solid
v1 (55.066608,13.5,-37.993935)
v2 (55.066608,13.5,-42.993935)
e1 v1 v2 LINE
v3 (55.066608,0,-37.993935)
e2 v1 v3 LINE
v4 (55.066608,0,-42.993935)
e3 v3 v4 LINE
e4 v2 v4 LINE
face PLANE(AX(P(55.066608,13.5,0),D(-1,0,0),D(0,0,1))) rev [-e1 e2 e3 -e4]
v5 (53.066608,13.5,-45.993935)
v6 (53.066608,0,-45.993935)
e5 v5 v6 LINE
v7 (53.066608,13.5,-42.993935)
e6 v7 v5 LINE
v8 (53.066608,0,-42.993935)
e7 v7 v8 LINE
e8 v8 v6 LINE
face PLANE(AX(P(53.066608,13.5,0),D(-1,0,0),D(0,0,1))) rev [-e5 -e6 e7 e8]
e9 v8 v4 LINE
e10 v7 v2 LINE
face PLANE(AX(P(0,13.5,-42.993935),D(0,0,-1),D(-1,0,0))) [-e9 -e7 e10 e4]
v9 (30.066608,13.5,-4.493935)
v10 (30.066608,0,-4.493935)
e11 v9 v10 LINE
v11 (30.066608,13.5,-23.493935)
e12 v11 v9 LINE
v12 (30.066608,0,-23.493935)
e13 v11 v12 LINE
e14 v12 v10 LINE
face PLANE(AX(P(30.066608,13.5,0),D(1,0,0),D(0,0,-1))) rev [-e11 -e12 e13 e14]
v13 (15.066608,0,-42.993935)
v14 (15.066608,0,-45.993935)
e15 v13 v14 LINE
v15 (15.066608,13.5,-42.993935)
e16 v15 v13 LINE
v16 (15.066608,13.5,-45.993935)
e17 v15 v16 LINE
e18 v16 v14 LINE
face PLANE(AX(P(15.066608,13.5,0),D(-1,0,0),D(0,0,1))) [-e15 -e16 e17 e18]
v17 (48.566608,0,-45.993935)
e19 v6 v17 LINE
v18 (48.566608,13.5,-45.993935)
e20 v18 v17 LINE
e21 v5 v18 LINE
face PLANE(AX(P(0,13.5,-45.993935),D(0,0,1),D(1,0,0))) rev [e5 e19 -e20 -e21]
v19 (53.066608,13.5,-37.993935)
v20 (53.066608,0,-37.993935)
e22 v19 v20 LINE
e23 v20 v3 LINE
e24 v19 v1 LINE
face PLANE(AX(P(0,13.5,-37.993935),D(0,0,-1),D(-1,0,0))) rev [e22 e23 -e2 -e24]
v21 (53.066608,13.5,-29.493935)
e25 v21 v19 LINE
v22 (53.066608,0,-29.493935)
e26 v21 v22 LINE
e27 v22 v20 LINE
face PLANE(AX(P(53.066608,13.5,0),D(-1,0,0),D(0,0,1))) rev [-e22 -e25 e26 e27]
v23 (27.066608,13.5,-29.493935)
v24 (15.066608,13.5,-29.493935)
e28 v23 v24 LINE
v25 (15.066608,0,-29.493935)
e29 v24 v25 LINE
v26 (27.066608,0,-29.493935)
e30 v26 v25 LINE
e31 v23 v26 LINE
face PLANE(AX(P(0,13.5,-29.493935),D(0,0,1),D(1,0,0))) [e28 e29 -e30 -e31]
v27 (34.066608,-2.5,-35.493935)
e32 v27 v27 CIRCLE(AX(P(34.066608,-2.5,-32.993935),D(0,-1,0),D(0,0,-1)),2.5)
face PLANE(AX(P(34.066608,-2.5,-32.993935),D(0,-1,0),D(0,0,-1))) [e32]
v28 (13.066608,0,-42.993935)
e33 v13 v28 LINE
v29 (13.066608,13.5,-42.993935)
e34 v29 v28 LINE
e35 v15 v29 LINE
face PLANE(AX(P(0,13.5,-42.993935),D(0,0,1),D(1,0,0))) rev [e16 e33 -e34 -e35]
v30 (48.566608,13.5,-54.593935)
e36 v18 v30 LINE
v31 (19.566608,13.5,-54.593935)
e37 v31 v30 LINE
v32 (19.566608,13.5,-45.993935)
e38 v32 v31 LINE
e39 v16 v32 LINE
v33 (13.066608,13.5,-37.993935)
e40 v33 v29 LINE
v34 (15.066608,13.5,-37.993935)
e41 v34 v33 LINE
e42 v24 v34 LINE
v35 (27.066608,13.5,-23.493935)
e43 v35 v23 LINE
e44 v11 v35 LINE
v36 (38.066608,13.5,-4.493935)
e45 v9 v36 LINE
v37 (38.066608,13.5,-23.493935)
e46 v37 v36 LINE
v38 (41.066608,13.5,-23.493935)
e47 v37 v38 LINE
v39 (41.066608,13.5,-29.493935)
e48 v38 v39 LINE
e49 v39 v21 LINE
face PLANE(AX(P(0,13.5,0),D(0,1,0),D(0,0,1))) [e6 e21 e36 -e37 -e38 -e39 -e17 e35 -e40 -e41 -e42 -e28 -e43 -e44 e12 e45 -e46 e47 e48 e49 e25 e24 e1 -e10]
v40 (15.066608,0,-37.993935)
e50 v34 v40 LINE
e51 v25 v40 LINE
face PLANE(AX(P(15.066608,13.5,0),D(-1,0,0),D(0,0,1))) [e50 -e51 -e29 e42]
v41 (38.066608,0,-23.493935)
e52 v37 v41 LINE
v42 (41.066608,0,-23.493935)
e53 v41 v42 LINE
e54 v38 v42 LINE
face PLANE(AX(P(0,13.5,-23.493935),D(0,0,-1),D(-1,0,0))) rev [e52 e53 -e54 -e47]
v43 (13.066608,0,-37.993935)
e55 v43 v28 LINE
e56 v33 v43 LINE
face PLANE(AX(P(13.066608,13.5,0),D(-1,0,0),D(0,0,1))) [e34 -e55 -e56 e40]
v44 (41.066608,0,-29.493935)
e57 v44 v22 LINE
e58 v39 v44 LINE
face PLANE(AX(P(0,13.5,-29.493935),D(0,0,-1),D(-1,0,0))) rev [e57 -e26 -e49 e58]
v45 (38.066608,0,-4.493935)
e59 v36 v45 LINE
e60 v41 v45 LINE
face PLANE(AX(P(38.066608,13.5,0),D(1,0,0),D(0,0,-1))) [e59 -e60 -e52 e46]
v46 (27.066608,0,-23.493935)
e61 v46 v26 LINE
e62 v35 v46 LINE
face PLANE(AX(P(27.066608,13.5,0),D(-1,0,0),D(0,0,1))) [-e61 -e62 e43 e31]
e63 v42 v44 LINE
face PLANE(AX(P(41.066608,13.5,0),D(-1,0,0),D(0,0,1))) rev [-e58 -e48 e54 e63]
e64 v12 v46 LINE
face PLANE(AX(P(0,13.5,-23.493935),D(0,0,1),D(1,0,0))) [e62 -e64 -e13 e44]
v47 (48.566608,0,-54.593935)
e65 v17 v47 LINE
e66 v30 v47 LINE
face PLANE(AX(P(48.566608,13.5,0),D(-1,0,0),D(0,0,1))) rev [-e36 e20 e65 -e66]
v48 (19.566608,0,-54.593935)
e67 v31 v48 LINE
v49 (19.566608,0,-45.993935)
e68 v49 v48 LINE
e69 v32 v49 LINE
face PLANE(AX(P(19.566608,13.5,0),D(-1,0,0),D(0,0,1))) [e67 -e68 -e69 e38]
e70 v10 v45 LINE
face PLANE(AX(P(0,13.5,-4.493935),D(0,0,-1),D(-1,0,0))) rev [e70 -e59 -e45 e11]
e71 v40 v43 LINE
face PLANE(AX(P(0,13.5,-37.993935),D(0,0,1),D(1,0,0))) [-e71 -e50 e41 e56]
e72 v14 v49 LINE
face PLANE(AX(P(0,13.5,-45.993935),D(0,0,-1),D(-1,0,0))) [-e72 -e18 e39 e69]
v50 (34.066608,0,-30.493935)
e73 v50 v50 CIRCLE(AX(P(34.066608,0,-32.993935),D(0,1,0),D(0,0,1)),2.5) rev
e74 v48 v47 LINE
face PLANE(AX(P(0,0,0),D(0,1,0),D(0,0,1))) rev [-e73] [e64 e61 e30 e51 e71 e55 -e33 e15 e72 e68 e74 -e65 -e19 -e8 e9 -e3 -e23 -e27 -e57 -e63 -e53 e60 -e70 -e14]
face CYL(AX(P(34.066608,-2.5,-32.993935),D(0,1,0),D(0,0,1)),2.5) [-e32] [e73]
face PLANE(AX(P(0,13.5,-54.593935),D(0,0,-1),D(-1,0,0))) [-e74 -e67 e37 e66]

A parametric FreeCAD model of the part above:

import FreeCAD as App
import Part
import Sketcher

doc = App.newDocument("Part")
body = doc.addObject("PartDesign::Body", "Body")

# Sketch on XZ plane
sketch1 = body.newObject("Sketcher::SketchObject", "Sketch")
sketch1.AttachmentSupport = (doc.getObject("XZ_Plane"), [""])
sketch1.MapMode = "FlatFace"
sketch1.addGeometry([
    Part.LineSegment(App.Vector(30.1, -23.5, 0), App.Vector(30.1, -4.5, 0)),  # 0
    Part.LineSegment(App.Vector(30.1, -4.5, 0), App.Vector(38.1, -4.5, 0)),  # 1
    Part.LineSegment(App.Vector(38.1, -4.5, 0), App.Vector(38.1, -23.5, 0)),  # 2
    Part.LineSegment(App.Vector(38.1, -23.5, 0), App.Vector(41.1, -23.5, 0)),  # 3
    Part.LineSegment(App.Vector(41.1, -23.5, 0), App.Vector(41.1, -29.5, 0)),  # 4
    Part.LineSegment(App.Vector(41.1, -29.5, 0), App.Vector(53.1, -29.5, 0)),  # 5
    Part.LineSegment(App.Vector(53.1, -29.5, 0), App.Vector(53.1, -38, 0)),  # 6
    Part.LineSegment(App.Vector(53.1, -38, 0), App.Vector(55.1, -38, 0)),  # 7
    Part.LineSegment(App.Vector(55.1, -38, 0), App.Vector(55.1, -43, 0)),  # 8
    Part.LineSegment(App.Vector(55.1, -43, 0), App.Vector(53.1, -43, 0)),  # 9
    Part.LineSegment(App.Vector(53.1, -43, 0), App.Vector(53.1, -46, 0)),  # 10
    Part.LineSegment(App.Vector(53.1, -46, 0), App.Vector(48.6, -46, 0)),  # 11
    Part.LineSegment(App.Vector(48.6, -46, 0), App.Vector(48.6, -54.6, 0)),  # 12
    Part.LineSegment(App.Vector(48.6, -54.6, 0), App.Vector(19.6, -54.6, 0)),  # 13
    Part.LineSegment(App.Vector(19.6, -54.6, 0), App.Vector(19.6, -46, 0)),  # 14
    Part.LineSegment(App.Vector(19.6, -46, 0), App.Vector(15.1, -46, 0)),  # 15
    Part.LineSegment(App.Vector(15.1, -46, 0), App.Vector(15.1, -43, 0)),  # 16
    Part.LineSegment(App.Vector(15.1, -43, 0), App.Vector(13.1, -43, 0)),  # 17
    Part.LineSegment(App.Vector(13.1, -43, 0), App.Vector(13.1, -38, 0)),  # 18
    Part.LineSegment(App.Vector(13.1, -38, 0), App.Vector(15.1, -38, 0)),  # 19
    Part.LineSegment(App.Vector(15.1, -38, 0), App.Vector(15.1, -29.5, 0)),  # 20
    Part.LineSegment(App.Vector(15.1, -29.5, 0), App.Vector(27.1, -29.5, 0)),  # 21
    Part.LineSegment(App.Vector(27.1, -29.5, 0), App.Vector(27.1, -23.5, 0)),  # 22
    Part.LineSegment(App.Vector(27.1, -23.5, 0), App.Vector(30.1, -23.5, 0)),  # 23
], False)
sketch1.addConstraint([
    Sketcher.Constraint("Coincident", 0, 2, 1, 1),
    Sketcher.Constraint("Coincident", 1, 2, 2, 1),
    Sketcher.Constraint("Coincident", 2, 2, 3, 1),
    Sketcher.Constraint("Coincident", 3, 2, 4, 1),
    Sketcher.Constraint("Coincident", 4, 2, 5, 1),
    Sketcher.Constraint("Coincident", 5, 2, 6, 1),
    Sketcher.Constraint("Coincident", 6, 2, 7, 1),
    Sketcher.Constraint("Coincident", 7, 2, 8, 1),
    Sketcher.Constraint("Coincident", 8, 2, 9, 1),
    Sketcher.Constraint("Coincident", 9, 2, 10, 1),
    Sketcher.Constraint("Coincident", 10, 2, 11, 1),
    Sketcher.Constraint("Coincident", 11, 2, 12, 1),
    Sketcher.Constraint("Coincident", 12, 2, 13, 1),
    Sketcher.Constraint("Coincident", 13, 2, 14, 1),
    Sketcher.Constraint("Coincident", 14, 2, 15, 1),
    Sketcher.Constraint("Coincident", 15, 2, 16, 1),
    Sketcher.Constraint("Coincident", 16, 2, 17, 1),
    Sketcher.Constraint("Coincident", 17, 2, 18, 1),
    Sketcher.Constraint("Coincident", 18, 2, 19, 1),
    Sketcher.Constraint("Coincident", 19, 2, 20, 1),
    Sketcher.Constraint("Coincident", 20, 2, 21, 1),
    Sketcher.Constraint("Coincident", 21, 2, 22, 1),
    Sketcher.Constraint("Coincident", 22, 2, 23, 1),
    Sketcher.Constraint("Coincident", 23, 2, 0, 1),
    Sketcher.Constraint("Vertical", 0),
    Sketcher.Constraint("Horizontal", 1),
    Sketcher.Constraint("Vertical", 2),
    Sketcher.Constraint("Horizontal", 3),
    Sketcher.Constraint("Vertical", 4),
    Sketcher.Constraint("Horizontal", 5),
    Sketcher.Constraint("Vertical", 6),
    Sketcher.Constraint("Horizontal", 7),
    Sketcher.Constraint("Vertical", 8),
    Sketcher.Constraint("Horizontal", 9),
    Sketcher.Constraint("Vertical", 10),
    Sketcher.Constraint("Horizontal", 11),
    Sketcher.Constraint("Vertical", 12),
    Sketcher.Constraint("Horizontal", 13),
    Sketcher.Constraint("Vertical", 14),
    Sketcher.Constraint("Horizontal", 15),
    Sketcher.Constraint("Vertical", 16),
    Sketcher.Constraint("Horizontal", 17),
    Sketcher.Constraint("Vertical", 18),
    Sketcher.Constraint("Horizontal", 19),
    Sketcher.Constraint("Vertical", 20),
    Sketcher.Constraint("Horizontal", 21),
    Sketcher.Constraint("Vertical", 22),
    Sketcher.Constraint("Horizontal", 23),
    Sketcher.Constraint("Horizontal", 11, 2, 14, 2),
    Sketcher.Constraint("Horizontal", 9, 2, 16, 2),
    Sketcher.Constraint("Horizontal", 7, 2, 18, 2),
    Sketcher.Constraint("Horizontal", 5, 2, 20, 2),
    Sketcher.Constraint("Horizontal", 3, 2, 22, 2),
    Sketcher.Constraint("Vertical", 6, 2, 9, 2),
    Sketcher.Constraint("Vertical", 16, 2, 19, 2),
    Sketcher.Constraint("Equal", 11, 15),
    Sketcher.Constraint("Equal", 9, 17),
    Sketcher.Constraint("Equal", 5, 21),
    Sketcher.Constraint("Equal", 3, 23),
    Sketcher.Constraint("Equal", 23, 10),
    Sketcher.Constraint("DistanceX", 1, 1, 1, 2, 8.0),
    Sketcher.Constraint("DistanceX", 3, 1, 3, 2, 3.0),
    Sketcher.Constraint("DistanceX", 5, 1, 5, 2, 12.0),
    Sketcher.Constraint("DistanceX", 7, 1, 7, 2, 2.0),
    Sketcher.Constraint("DistanceX", 13, 2, 13, 1, 29.0),
    Sketcher.Constraint("DistanceY", 0, 1, 0, 2, 19.0),
    Sketcher.Constraint("DistanceY", 4, 2, 4, 1, 6.0),
    Sketcher.Constraint("DistanceY", 8, 2, 8, 1, 5.0),
    Sketcher.Constraint("DistanceY", 6, 2, 6, 1, 8.5),
    Sketcher.Constraint("DistanceY", 12, 2, 12, 1, 8.6),
    Sketcher.Constraint("DistanceX", -1, 1, 0, 2, 30.066608),
    Sketcher.Constraint("DistanceY", 0, 2, -1, 1, 4.493935),
])
pad1 = body.newObject("PartDesign::Pad", "Pad")
pad1.Profile = sketch1
pad1.Length = 13.5
pad1.Reversed = True

# Sketch on XZ plane
sketch2 = body.newObject("Sketcher::SketchObject", "Sketch001")
sketch2.AttachmentSupport = (doc.getObject("XZ_Plane"), [""])
sketch2.MapMode = "FlatFace"
sketch2.addGeometry(Part.Circle(App.Vector(34.1, -33, 0), App.Vector(0, 0, 1), 2.5), False)
sketch2.addConstraint([
    Sketcher.Constraint("Diameter", 0, 5.0),
    Sketcher.Constraint("DistanceX", -1, 1, 0, 3, 34.066608),
    Sketcher.Constraint("DistanceY", 0, 3, -1, 1, 32.993935),
])
pad2 = body.newObject("PartDesign::Pad", "Pad001")
pad2.Profile = sketch2
pad2.Length = 2.5

doc.recompute()
